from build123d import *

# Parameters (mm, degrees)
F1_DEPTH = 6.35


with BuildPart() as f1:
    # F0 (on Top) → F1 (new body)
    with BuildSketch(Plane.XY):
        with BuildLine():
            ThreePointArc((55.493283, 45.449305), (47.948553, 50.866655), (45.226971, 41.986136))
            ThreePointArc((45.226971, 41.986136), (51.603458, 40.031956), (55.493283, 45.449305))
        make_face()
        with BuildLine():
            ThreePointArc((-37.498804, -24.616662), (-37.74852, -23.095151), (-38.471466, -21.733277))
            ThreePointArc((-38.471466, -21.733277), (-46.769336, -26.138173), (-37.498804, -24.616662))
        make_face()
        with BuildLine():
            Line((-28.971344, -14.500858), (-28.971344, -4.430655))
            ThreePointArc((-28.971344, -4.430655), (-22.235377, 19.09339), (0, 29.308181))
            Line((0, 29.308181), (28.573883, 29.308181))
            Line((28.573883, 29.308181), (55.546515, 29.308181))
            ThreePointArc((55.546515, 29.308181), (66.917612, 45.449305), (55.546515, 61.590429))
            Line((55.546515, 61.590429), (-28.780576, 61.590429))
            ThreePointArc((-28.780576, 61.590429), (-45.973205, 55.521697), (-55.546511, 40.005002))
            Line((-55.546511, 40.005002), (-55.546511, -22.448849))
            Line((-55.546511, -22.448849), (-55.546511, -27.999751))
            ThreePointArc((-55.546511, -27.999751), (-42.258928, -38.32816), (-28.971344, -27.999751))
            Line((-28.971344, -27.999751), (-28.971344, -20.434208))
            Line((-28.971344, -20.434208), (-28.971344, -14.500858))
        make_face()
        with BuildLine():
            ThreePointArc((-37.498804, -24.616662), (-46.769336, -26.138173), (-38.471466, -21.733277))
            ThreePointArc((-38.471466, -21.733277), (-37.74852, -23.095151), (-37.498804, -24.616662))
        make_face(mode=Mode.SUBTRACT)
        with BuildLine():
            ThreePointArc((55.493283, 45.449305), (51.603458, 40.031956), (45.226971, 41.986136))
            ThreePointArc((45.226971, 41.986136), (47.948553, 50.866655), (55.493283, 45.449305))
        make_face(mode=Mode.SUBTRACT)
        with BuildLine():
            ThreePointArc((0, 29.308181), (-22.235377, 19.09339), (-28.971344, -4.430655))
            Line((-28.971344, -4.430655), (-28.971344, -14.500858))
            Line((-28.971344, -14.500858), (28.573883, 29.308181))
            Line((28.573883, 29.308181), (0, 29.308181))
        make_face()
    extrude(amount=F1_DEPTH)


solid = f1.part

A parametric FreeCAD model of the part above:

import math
import FreeCAD as App
import Part
import Sketcher
from FreeCAD import Vector
Q = App.Units.Quantity

doc = App.newDocument("Part")
params = doc.addObject("Spreadsheet::Sheet", "Params")
for row, (alias, value) in enumerate([
    ("pad1_length", "0.25 in"),
], start=1):
    params.set(f"A{row}", alias)
    params.set(f"B{row}", "=" + value)
    params.setAlias(f"B{row}", alias)

body = doc.addObject("PartDesign::Body", "Body")

# Sketch on XY plane
sketch1 = body.newObject("Sketcher::SketchObject", "Sketch")
sketch1.AttachmentSupport = (doc.getObject("XY_Plane"), [""])
sketch1.MapMode = "FlatFace"
sketch1.addGeometry([
    Part.LineSegment(Vector(-29, -28, 0), Vector(-29, -14.5, 0)),  # 0
    Part.LineSegment(Vector(-29, -14.5, 0), Vector(28.6, 29.3, 0)),  # 1
    Part.LineSegment(Vector(28.6, 29.3, 0), Vector(55.5, 29.3, 0)),  # 2
    Part.ArcOfCircle(Part.Circle(Vector(49.8, 45.4, 0), Vector(0, 0, 1), 17.1), math.radians(-70), math.radians(70)),  # 3
    Part.LineSegment(Vector(55.5, 61.6, 0), Vector(-28.8, 61.6, 0)),  # 4
    Part.ArcOfCircle(Part.Circle(Vector(-28.8, 34.2, 0), Vector(0, 0, 1), 27.4), math.radians(90), math.radians(168)),  # 5
    Part.LineSegment(Vector(-55.5, 40, 0), Vector(-55.5, -28, 0)),  # 6
    Part.ArcOfCircle(Part.Circle(Vector(-42.3, -24.6, 0), Vector(0, 0, 1), 13.7), math.radians(-166), math.radians(-14)),  # 7
    Part.ArcOfCircle(Part.Circle(Vector(-42.3, -24.6, 0), Vector(0, 0, 1), 4.8), math.radians(0), math.radians(37)),  # 8
    Part.ArcOfCircle(Part.Circle(Vector(-42.3, -24.6, 0), Vector(0, 0, 1), 4.8), math.radians(37), math.radians(360)),  # 9
    Part.ArcOfCircle(Part.Circle(Vector(49.8, 45.4, 0), Vector(0, 0, 1), 5.7), math.radians(0), math.radians(217)),  # 10
    Part.ArcOfCircle(Part.Circle(Vector(49.8, 45.4, 0), Vector(0, 0, 1), 5.7), math.radians(-143), math.radians(0)),  # 11
], False)
sketch1.addConstraint([
    Sketcher.Constraint("Coincident", 0, 2, 1, 1),
    Sketcher.Constraint("Coincident", 1, 2, 2, 1),
    Sketcher.Constraint("Coincident", 2, 2, 3, 1),
    Sketcher.Constraint("Coincident", 3, 2, 4, 1),
    Sketcher.Constraint("Tangent", 4, 2, 5, 1),
    Sketcher.Constraint("Coincident", 5, 2, 6, 1),
    Sketcher.Constraint("Coincident", 6, 2, 7, 1),
    Sketcher.Constraint("Coincident", 7, 2, 0, 1),
    Sketcher.Constraint("Tangent", 8, 1, 9, 2),
    Sketcher.Constraint("Coincident", 9, 1, 8, 2),
    Sketcher.Constraint("Tangent", 10, 1, 11, 2),
    Sketcher.Constraint("Coincident", 11, 1, 10, 2),
    Sketcher.Constraint("Vertical", 0),
    Sketcher.Constraint("Horizontal", 2),
    Sketcher.Constraint("Horizontal", 4),
    Sketcher.Constraint("Vertical", 6),
    Sketcher.Constraint("Coincident", 8, 3, 7, 3),
    Sketcher.Constraint("Coincident", 10, 3, 3, 3),
    Sketcher.Constraint("Horizontal", 6, 2, 7, 2),
    Sketcher.Constraint("Horizontal", 9, 3, 8, 1),
    Sketcher.Constraint("Horizontal", 11, 3, 10, 1),
    Sketcher.Constraint("Vertical", 2, 2, 3, 2),
    Sketcher.Constraint("DistanceY", -1, 1, 5, 2, Q("1.5750001 in")),
    Sketcher.Constraint("Radius", 8, 4.760129),
    Sketcher.Constraint("DistanceY", 0, 2, -1, 1, Q("0.5708999 in")),
    Sketcher.Constraint("Radius", 3, 17.141606),
    Sketcher.Constraint("Radius", 5, 27.387595),
    Sketcher.Constraint("Radius", 7, 13.711497),
    Sketcher.Constraint("Radius", 10, 5.717277),
    Sketcher.Constraint("DistanceX", 4, 2, 4, 1, 84.327091),
    Sketcher.Constraint("DistanceY", 8, 3, 5, 3, 58.819499),
    Sketcher.Constraint("DistanceX", 2, 1, 2, 2, 26.972632),
    Sketcher.Constraint("DistanceY", 0, 1, 0, 2, 13.498893),
    Sketcher.Constraint("DistanceY", -1, 1, 1, 2, 29.308181),
    Sketcher.Constraint("DistanceY", -1, 1, 3, 2, 61.590429),
    Sketcher.Constraint("DistanceX", 5, 2, -1, 1, 55.546511),
    Sketcher.Constraint("DistanceX", -1, 1, 11, 1, 45.226971),
    Sketcher.Constraint("DistanceX", 9, 1, 8, 1, 0.972662),
])
pad1 = body.newObject("PartDesign::Pad", "Pad")
pad1.Profile = sketch1
pad1.setExpression("Length", "Params.pad1_length")

doc.recompute()
